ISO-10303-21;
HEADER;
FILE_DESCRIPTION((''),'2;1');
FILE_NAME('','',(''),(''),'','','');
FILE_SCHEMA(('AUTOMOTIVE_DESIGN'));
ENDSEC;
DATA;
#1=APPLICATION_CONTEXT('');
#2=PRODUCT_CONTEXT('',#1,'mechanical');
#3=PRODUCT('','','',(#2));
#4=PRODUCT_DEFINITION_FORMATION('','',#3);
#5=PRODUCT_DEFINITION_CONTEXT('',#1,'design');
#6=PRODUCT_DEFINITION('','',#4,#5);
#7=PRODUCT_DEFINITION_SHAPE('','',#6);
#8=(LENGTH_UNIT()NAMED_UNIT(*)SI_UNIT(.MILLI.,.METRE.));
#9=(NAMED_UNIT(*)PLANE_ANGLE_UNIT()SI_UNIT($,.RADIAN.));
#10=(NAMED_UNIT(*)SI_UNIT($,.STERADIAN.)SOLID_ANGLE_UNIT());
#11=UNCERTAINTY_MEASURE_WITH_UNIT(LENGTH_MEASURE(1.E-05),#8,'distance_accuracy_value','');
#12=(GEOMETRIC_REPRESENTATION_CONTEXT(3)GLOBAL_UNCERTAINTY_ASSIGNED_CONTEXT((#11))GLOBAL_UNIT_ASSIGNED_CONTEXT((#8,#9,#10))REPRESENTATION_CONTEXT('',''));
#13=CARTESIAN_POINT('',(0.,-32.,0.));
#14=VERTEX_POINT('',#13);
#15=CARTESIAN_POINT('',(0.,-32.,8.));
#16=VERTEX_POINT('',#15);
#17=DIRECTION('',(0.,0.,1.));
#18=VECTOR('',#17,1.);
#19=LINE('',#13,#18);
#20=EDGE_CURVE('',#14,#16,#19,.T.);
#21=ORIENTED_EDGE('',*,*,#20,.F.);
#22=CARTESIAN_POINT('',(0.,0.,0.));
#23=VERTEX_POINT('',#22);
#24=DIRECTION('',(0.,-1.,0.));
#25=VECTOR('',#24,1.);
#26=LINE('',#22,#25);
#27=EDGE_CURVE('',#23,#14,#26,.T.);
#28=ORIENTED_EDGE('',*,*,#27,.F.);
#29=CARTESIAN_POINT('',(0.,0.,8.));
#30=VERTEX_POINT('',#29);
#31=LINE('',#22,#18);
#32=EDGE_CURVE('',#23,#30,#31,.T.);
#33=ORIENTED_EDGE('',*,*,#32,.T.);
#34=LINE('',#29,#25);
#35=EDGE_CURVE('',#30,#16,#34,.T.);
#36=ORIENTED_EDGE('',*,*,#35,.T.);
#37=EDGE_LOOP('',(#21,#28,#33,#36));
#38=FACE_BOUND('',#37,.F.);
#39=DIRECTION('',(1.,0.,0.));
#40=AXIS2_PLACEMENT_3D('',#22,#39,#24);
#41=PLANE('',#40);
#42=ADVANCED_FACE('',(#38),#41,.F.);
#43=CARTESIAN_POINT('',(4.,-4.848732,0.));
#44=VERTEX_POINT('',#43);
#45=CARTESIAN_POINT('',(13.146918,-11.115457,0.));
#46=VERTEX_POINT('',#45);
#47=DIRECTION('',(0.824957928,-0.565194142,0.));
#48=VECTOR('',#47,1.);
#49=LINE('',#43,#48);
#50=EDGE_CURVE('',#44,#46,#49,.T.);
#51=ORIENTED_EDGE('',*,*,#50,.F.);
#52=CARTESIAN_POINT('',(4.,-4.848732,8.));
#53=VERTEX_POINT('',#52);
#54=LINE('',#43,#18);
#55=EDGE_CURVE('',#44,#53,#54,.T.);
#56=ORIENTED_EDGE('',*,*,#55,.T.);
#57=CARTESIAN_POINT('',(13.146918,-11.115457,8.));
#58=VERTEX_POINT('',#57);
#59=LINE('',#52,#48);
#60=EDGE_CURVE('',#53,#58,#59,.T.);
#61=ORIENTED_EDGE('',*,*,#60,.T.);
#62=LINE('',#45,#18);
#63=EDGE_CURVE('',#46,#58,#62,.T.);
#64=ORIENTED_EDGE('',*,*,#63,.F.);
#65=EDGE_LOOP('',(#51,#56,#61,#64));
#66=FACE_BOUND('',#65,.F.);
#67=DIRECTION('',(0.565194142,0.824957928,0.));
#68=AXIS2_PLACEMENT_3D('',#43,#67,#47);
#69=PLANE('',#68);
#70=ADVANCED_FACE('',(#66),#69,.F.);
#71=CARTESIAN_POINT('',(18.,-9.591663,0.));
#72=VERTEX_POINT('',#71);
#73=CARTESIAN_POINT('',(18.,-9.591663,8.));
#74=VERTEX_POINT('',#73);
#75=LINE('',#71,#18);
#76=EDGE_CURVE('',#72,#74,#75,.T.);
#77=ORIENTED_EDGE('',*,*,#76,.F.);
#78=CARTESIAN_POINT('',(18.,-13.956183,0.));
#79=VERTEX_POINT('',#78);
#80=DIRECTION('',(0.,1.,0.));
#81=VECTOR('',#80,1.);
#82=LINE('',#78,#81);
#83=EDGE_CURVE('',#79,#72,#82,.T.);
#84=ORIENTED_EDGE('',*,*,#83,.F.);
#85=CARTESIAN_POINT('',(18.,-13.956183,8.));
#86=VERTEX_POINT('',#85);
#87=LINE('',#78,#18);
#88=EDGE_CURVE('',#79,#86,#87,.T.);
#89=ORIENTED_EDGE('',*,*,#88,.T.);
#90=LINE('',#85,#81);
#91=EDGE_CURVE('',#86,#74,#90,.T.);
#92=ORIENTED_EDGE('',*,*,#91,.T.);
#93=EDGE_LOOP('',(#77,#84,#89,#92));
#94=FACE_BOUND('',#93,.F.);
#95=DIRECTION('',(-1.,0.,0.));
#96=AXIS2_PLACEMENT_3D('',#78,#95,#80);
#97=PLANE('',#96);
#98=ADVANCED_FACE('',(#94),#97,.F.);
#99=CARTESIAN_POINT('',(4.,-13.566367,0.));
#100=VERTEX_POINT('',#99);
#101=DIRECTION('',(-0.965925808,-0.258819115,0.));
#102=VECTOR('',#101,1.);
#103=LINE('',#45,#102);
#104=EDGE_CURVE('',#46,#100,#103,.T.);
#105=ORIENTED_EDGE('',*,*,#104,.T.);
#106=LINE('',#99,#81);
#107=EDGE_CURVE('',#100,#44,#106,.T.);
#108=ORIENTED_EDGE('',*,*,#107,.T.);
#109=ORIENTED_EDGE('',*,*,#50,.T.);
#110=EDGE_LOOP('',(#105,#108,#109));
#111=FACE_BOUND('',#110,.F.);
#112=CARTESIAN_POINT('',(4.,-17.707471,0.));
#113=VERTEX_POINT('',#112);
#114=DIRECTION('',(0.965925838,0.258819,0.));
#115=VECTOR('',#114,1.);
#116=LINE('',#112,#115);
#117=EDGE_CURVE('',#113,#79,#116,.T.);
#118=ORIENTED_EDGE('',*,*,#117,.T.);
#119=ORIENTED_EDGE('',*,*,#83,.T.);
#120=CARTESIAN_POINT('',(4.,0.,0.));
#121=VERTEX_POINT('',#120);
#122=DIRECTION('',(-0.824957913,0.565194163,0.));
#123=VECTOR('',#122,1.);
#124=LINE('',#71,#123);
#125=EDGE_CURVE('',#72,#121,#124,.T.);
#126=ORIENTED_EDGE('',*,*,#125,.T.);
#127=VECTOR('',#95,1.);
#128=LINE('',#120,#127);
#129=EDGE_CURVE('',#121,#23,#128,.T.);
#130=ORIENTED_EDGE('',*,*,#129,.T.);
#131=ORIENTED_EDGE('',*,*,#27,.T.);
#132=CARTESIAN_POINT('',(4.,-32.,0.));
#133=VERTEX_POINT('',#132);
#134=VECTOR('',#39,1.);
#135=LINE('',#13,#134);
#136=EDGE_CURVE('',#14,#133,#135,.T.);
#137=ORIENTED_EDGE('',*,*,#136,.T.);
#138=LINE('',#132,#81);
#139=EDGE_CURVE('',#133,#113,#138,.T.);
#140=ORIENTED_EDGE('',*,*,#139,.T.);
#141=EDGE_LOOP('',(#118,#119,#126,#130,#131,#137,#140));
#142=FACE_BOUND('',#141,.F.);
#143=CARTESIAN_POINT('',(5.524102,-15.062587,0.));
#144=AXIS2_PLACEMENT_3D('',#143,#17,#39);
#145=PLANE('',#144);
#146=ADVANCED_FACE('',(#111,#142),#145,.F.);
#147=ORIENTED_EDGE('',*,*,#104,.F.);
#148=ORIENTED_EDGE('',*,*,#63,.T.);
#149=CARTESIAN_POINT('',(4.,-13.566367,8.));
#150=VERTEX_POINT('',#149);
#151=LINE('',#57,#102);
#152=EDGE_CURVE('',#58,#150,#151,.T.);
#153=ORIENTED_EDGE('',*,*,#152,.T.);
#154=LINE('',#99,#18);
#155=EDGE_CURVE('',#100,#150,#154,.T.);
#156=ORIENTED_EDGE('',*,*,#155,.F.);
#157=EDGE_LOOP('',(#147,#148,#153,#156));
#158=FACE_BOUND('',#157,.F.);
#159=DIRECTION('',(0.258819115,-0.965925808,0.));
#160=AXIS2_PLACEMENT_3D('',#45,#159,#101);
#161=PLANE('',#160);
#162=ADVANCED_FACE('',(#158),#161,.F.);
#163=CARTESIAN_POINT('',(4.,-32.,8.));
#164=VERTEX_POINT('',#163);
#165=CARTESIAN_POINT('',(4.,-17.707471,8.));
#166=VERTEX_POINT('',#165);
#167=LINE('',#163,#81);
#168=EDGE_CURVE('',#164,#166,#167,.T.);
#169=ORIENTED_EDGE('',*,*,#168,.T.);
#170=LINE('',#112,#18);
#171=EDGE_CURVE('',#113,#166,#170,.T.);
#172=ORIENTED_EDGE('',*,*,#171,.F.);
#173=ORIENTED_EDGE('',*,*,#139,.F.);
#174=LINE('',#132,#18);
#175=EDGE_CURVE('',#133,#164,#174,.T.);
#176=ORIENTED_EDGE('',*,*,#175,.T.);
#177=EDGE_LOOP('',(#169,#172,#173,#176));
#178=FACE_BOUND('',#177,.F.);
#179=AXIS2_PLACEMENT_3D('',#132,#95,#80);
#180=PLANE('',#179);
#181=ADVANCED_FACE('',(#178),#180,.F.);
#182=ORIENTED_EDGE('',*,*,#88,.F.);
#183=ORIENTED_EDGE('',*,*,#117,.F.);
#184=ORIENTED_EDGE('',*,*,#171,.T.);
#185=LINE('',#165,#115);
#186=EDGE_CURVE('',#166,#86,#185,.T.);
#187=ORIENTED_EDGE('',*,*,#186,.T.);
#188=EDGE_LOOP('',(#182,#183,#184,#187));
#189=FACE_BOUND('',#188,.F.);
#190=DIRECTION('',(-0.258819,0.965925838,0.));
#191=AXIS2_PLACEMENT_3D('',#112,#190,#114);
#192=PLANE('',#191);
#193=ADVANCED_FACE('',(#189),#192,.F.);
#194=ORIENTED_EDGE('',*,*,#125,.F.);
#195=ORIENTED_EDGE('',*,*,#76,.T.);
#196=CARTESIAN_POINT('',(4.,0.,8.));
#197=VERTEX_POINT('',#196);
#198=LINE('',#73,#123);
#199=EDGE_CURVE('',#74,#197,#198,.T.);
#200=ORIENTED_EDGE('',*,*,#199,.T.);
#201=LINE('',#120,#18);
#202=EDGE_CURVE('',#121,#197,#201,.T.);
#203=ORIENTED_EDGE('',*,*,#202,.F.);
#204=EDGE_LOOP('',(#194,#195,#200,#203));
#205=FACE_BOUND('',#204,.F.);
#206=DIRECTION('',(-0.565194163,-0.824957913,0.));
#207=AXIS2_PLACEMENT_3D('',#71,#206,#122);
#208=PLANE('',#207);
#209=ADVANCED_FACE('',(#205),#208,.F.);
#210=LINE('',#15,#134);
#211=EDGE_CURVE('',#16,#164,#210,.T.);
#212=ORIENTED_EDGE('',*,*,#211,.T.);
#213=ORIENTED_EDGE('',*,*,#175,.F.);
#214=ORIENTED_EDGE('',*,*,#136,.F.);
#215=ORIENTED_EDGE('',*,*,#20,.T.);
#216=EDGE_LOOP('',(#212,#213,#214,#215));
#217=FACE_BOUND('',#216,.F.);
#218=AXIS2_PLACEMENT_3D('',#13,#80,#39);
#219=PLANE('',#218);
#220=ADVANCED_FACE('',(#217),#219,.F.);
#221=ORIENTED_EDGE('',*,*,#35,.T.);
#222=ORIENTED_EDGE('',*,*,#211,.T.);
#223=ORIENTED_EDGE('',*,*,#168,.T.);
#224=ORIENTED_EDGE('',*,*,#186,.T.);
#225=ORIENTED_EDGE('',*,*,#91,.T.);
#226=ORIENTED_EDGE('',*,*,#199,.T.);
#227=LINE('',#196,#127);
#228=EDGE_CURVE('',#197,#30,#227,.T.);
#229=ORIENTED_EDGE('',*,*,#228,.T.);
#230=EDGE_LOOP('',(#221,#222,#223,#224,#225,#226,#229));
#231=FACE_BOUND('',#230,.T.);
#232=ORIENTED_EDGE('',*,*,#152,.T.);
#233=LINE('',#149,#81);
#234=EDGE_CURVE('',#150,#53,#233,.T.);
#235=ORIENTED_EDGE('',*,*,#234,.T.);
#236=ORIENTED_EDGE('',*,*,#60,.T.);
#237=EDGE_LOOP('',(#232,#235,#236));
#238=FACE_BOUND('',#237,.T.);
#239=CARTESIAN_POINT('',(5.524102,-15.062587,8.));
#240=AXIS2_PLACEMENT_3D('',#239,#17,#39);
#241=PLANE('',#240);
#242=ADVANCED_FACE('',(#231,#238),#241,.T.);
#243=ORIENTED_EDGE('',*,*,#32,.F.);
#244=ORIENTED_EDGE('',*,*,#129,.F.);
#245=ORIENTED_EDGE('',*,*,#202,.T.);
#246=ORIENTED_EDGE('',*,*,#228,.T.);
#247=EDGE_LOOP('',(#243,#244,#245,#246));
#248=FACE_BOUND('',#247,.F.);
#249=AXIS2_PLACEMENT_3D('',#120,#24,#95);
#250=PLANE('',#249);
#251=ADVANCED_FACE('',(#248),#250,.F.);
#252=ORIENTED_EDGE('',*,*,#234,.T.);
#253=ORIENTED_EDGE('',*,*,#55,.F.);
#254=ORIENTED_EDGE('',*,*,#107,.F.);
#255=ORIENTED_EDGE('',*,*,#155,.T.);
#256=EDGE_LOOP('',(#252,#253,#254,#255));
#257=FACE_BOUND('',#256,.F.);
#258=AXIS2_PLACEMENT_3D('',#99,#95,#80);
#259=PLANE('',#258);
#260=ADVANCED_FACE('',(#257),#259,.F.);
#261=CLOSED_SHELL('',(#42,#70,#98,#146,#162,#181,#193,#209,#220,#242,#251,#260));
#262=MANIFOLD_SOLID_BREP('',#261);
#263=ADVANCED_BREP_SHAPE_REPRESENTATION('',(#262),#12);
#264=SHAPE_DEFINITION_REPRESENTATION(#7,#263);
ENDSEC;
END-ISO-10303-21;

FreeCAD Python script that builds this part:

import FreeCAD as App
import Part
import Sketcher
from FreeCAD import Vector
Q = App.Units.Quantity

doc = App.newDocument("Part")
body = doc.addObject("PartDesign::Body", "Body")

# Sketch on XY plane
sketch1 = doc.addObject("Sketcher::SketchObject", "Sketch")
body.addObject(sketch1)
sketch1.AttachmentSupport = (doc.XY_Plane, [""])
sketch1.MapMode = "FlatFace"
sketch1.addGeometry(Part.LineSegment(Vector(4, 0, 0), Vector(0, 0, 0)), False)
sketch1.addGeometry(Part.LineSegment(Vector(0, 0, 0), Vector(0, -32, 0)), False)
sketch1.addGeometry(Part.LineSegment(Vector(0, -32, 0), Vector(4, -32, 0)), False)
sketch1.addGeometry(Part.LineSegment(Vector(4, -32, 0), Vector(4, -17.7, 0)), False)
sketch1.addGeometry(Part.LineSegment(Vector(4, -17.7, 0), Vector(18, -14, 0)), False)
sketch1.addGeometry(Part.LineSegment(Vector(18, -14, 0), Vector(18, -9.6, 0)), False)
sketch1.addGeometry(Part.LineSegment(Vector(18, -9.6, 0), Vector(4, 0, 0)), False)
sketch1.addGeometry(Part.LineSegment(Vector(13.1, -11.1, 0), Vector(4, -13.6, 0)), False)
sketch1.addGeometry(Part.LineSegment(Vector(4, -13.6, 0), Vector(4, -4.8, 0)), False)
sketch1.addGeometry(Part.LineSegment(Vector(4, -4.8, 0), Vector(13.1, -11.1, 0)), False)
sketch1.addConstraint(Sketcher.Constraint("Coincident", 0, 2, 1, 1))
sketch1.addConstraint(Sketcher.Constraint("Coincident", 1, 2, 2, 1))
sketch1.addConstraint(Sketcher.Constraint("Coincident", 2, 2, 3, 1))
sketch1.addConstraint(Sketcher.Constraint("Coincident", 3, 2, 4, 1))
sketch1.addConstraint(Sketcher.Constraint("Coincident", 4, 2, 5, 1))
sketch1.addConstraint(Sketcher.Constraint("Coincident", 5, 2, 6, 1))
sketch1.addConstraint(Sketcher.Constraint("Coincident", 6, 2, 0, 1))
sketch1.addConstraint(Sketcher.Constraint("Coincident", 7, 2, 8, 1))
sketch1.addConstraint(Sketcher.Constraint("Coincident", 8, 2, 9, 1))
sketch1.addConstraint(Sketcher.Constraint("Coincident", 9, 2, 7, 1))
sketch1.addConstraint(Sketcher.Constraint("Horizontal", 0))
sketch1.addConstraint(Sketcher.Constraint("Vertical", 1))
sketch1.addConstraint(Sketcher.Constraint("Horizontal", 2))
sketch1.addConstraint(Sketcher.Constraint("Vertical", 3))
sketch1.addConstraint(Sketcher.Constraint("Vertical", 5))
sketch1.addConstraint(Sketcher.Constraint("Vertical", 8))
sketch1.addConstraint(Sketcher.Constraint("Coincident", 0, 2, -1, 1))
sketch1.addConstraint(Sketcher.Constraint("Parallel", 4, 7))
sketch1.addConstraint(Sketcher.Constraint("Parallel", 6, 9))
sketch1.addConstraint(Sketcher.Constraint("Vertical", 3, 2, 6, 2))
sketch1.addConstraint(Sketcher.Constraint("Vertical", 6, 2, 7, 2))
sketch1.addConstraint(Sketcher.Constraint("DistanceX", 0, 2, 0, 1, Q("4 mm")))
sketch1.addConstraint(Sketcher.Constraint("DistanceY", 1, 2, 1, 1, Q("32 mm")))
sketch1.addConstraint(Sketcher.Constraint("Angle", 4, Q("14.999997 deg")))
sketch1.addConstraint(Sketcher.Constraint("DistanceX", -1, 1, 4, 2, Q("18 mm")))
sketch1.addConstraint(Sketcher.Constraint("DistanceY", 3, 1, 3, 2, Q("14.292529 mm")))
sketch1.addConstraint(Sketcher.Constraint("DistanceY", 5, 1, 5, 2, Q("4.36452 mm")))
sketch1.addConstraint(Sketcher.Constraint("Distance", 9, Q("11.087739 mm")))
sketch1.addConstraint(Sketcher.Constraint("DistanceY", 3, 2, 8, 2, Q("12.858739 mm")))
pad1 = doc.addObject("PartDesign::Pad", "Pad")
body.addObject(pad1)
pad1.Profile = sketch1
pad1.Length = 8

doc.recompute()
